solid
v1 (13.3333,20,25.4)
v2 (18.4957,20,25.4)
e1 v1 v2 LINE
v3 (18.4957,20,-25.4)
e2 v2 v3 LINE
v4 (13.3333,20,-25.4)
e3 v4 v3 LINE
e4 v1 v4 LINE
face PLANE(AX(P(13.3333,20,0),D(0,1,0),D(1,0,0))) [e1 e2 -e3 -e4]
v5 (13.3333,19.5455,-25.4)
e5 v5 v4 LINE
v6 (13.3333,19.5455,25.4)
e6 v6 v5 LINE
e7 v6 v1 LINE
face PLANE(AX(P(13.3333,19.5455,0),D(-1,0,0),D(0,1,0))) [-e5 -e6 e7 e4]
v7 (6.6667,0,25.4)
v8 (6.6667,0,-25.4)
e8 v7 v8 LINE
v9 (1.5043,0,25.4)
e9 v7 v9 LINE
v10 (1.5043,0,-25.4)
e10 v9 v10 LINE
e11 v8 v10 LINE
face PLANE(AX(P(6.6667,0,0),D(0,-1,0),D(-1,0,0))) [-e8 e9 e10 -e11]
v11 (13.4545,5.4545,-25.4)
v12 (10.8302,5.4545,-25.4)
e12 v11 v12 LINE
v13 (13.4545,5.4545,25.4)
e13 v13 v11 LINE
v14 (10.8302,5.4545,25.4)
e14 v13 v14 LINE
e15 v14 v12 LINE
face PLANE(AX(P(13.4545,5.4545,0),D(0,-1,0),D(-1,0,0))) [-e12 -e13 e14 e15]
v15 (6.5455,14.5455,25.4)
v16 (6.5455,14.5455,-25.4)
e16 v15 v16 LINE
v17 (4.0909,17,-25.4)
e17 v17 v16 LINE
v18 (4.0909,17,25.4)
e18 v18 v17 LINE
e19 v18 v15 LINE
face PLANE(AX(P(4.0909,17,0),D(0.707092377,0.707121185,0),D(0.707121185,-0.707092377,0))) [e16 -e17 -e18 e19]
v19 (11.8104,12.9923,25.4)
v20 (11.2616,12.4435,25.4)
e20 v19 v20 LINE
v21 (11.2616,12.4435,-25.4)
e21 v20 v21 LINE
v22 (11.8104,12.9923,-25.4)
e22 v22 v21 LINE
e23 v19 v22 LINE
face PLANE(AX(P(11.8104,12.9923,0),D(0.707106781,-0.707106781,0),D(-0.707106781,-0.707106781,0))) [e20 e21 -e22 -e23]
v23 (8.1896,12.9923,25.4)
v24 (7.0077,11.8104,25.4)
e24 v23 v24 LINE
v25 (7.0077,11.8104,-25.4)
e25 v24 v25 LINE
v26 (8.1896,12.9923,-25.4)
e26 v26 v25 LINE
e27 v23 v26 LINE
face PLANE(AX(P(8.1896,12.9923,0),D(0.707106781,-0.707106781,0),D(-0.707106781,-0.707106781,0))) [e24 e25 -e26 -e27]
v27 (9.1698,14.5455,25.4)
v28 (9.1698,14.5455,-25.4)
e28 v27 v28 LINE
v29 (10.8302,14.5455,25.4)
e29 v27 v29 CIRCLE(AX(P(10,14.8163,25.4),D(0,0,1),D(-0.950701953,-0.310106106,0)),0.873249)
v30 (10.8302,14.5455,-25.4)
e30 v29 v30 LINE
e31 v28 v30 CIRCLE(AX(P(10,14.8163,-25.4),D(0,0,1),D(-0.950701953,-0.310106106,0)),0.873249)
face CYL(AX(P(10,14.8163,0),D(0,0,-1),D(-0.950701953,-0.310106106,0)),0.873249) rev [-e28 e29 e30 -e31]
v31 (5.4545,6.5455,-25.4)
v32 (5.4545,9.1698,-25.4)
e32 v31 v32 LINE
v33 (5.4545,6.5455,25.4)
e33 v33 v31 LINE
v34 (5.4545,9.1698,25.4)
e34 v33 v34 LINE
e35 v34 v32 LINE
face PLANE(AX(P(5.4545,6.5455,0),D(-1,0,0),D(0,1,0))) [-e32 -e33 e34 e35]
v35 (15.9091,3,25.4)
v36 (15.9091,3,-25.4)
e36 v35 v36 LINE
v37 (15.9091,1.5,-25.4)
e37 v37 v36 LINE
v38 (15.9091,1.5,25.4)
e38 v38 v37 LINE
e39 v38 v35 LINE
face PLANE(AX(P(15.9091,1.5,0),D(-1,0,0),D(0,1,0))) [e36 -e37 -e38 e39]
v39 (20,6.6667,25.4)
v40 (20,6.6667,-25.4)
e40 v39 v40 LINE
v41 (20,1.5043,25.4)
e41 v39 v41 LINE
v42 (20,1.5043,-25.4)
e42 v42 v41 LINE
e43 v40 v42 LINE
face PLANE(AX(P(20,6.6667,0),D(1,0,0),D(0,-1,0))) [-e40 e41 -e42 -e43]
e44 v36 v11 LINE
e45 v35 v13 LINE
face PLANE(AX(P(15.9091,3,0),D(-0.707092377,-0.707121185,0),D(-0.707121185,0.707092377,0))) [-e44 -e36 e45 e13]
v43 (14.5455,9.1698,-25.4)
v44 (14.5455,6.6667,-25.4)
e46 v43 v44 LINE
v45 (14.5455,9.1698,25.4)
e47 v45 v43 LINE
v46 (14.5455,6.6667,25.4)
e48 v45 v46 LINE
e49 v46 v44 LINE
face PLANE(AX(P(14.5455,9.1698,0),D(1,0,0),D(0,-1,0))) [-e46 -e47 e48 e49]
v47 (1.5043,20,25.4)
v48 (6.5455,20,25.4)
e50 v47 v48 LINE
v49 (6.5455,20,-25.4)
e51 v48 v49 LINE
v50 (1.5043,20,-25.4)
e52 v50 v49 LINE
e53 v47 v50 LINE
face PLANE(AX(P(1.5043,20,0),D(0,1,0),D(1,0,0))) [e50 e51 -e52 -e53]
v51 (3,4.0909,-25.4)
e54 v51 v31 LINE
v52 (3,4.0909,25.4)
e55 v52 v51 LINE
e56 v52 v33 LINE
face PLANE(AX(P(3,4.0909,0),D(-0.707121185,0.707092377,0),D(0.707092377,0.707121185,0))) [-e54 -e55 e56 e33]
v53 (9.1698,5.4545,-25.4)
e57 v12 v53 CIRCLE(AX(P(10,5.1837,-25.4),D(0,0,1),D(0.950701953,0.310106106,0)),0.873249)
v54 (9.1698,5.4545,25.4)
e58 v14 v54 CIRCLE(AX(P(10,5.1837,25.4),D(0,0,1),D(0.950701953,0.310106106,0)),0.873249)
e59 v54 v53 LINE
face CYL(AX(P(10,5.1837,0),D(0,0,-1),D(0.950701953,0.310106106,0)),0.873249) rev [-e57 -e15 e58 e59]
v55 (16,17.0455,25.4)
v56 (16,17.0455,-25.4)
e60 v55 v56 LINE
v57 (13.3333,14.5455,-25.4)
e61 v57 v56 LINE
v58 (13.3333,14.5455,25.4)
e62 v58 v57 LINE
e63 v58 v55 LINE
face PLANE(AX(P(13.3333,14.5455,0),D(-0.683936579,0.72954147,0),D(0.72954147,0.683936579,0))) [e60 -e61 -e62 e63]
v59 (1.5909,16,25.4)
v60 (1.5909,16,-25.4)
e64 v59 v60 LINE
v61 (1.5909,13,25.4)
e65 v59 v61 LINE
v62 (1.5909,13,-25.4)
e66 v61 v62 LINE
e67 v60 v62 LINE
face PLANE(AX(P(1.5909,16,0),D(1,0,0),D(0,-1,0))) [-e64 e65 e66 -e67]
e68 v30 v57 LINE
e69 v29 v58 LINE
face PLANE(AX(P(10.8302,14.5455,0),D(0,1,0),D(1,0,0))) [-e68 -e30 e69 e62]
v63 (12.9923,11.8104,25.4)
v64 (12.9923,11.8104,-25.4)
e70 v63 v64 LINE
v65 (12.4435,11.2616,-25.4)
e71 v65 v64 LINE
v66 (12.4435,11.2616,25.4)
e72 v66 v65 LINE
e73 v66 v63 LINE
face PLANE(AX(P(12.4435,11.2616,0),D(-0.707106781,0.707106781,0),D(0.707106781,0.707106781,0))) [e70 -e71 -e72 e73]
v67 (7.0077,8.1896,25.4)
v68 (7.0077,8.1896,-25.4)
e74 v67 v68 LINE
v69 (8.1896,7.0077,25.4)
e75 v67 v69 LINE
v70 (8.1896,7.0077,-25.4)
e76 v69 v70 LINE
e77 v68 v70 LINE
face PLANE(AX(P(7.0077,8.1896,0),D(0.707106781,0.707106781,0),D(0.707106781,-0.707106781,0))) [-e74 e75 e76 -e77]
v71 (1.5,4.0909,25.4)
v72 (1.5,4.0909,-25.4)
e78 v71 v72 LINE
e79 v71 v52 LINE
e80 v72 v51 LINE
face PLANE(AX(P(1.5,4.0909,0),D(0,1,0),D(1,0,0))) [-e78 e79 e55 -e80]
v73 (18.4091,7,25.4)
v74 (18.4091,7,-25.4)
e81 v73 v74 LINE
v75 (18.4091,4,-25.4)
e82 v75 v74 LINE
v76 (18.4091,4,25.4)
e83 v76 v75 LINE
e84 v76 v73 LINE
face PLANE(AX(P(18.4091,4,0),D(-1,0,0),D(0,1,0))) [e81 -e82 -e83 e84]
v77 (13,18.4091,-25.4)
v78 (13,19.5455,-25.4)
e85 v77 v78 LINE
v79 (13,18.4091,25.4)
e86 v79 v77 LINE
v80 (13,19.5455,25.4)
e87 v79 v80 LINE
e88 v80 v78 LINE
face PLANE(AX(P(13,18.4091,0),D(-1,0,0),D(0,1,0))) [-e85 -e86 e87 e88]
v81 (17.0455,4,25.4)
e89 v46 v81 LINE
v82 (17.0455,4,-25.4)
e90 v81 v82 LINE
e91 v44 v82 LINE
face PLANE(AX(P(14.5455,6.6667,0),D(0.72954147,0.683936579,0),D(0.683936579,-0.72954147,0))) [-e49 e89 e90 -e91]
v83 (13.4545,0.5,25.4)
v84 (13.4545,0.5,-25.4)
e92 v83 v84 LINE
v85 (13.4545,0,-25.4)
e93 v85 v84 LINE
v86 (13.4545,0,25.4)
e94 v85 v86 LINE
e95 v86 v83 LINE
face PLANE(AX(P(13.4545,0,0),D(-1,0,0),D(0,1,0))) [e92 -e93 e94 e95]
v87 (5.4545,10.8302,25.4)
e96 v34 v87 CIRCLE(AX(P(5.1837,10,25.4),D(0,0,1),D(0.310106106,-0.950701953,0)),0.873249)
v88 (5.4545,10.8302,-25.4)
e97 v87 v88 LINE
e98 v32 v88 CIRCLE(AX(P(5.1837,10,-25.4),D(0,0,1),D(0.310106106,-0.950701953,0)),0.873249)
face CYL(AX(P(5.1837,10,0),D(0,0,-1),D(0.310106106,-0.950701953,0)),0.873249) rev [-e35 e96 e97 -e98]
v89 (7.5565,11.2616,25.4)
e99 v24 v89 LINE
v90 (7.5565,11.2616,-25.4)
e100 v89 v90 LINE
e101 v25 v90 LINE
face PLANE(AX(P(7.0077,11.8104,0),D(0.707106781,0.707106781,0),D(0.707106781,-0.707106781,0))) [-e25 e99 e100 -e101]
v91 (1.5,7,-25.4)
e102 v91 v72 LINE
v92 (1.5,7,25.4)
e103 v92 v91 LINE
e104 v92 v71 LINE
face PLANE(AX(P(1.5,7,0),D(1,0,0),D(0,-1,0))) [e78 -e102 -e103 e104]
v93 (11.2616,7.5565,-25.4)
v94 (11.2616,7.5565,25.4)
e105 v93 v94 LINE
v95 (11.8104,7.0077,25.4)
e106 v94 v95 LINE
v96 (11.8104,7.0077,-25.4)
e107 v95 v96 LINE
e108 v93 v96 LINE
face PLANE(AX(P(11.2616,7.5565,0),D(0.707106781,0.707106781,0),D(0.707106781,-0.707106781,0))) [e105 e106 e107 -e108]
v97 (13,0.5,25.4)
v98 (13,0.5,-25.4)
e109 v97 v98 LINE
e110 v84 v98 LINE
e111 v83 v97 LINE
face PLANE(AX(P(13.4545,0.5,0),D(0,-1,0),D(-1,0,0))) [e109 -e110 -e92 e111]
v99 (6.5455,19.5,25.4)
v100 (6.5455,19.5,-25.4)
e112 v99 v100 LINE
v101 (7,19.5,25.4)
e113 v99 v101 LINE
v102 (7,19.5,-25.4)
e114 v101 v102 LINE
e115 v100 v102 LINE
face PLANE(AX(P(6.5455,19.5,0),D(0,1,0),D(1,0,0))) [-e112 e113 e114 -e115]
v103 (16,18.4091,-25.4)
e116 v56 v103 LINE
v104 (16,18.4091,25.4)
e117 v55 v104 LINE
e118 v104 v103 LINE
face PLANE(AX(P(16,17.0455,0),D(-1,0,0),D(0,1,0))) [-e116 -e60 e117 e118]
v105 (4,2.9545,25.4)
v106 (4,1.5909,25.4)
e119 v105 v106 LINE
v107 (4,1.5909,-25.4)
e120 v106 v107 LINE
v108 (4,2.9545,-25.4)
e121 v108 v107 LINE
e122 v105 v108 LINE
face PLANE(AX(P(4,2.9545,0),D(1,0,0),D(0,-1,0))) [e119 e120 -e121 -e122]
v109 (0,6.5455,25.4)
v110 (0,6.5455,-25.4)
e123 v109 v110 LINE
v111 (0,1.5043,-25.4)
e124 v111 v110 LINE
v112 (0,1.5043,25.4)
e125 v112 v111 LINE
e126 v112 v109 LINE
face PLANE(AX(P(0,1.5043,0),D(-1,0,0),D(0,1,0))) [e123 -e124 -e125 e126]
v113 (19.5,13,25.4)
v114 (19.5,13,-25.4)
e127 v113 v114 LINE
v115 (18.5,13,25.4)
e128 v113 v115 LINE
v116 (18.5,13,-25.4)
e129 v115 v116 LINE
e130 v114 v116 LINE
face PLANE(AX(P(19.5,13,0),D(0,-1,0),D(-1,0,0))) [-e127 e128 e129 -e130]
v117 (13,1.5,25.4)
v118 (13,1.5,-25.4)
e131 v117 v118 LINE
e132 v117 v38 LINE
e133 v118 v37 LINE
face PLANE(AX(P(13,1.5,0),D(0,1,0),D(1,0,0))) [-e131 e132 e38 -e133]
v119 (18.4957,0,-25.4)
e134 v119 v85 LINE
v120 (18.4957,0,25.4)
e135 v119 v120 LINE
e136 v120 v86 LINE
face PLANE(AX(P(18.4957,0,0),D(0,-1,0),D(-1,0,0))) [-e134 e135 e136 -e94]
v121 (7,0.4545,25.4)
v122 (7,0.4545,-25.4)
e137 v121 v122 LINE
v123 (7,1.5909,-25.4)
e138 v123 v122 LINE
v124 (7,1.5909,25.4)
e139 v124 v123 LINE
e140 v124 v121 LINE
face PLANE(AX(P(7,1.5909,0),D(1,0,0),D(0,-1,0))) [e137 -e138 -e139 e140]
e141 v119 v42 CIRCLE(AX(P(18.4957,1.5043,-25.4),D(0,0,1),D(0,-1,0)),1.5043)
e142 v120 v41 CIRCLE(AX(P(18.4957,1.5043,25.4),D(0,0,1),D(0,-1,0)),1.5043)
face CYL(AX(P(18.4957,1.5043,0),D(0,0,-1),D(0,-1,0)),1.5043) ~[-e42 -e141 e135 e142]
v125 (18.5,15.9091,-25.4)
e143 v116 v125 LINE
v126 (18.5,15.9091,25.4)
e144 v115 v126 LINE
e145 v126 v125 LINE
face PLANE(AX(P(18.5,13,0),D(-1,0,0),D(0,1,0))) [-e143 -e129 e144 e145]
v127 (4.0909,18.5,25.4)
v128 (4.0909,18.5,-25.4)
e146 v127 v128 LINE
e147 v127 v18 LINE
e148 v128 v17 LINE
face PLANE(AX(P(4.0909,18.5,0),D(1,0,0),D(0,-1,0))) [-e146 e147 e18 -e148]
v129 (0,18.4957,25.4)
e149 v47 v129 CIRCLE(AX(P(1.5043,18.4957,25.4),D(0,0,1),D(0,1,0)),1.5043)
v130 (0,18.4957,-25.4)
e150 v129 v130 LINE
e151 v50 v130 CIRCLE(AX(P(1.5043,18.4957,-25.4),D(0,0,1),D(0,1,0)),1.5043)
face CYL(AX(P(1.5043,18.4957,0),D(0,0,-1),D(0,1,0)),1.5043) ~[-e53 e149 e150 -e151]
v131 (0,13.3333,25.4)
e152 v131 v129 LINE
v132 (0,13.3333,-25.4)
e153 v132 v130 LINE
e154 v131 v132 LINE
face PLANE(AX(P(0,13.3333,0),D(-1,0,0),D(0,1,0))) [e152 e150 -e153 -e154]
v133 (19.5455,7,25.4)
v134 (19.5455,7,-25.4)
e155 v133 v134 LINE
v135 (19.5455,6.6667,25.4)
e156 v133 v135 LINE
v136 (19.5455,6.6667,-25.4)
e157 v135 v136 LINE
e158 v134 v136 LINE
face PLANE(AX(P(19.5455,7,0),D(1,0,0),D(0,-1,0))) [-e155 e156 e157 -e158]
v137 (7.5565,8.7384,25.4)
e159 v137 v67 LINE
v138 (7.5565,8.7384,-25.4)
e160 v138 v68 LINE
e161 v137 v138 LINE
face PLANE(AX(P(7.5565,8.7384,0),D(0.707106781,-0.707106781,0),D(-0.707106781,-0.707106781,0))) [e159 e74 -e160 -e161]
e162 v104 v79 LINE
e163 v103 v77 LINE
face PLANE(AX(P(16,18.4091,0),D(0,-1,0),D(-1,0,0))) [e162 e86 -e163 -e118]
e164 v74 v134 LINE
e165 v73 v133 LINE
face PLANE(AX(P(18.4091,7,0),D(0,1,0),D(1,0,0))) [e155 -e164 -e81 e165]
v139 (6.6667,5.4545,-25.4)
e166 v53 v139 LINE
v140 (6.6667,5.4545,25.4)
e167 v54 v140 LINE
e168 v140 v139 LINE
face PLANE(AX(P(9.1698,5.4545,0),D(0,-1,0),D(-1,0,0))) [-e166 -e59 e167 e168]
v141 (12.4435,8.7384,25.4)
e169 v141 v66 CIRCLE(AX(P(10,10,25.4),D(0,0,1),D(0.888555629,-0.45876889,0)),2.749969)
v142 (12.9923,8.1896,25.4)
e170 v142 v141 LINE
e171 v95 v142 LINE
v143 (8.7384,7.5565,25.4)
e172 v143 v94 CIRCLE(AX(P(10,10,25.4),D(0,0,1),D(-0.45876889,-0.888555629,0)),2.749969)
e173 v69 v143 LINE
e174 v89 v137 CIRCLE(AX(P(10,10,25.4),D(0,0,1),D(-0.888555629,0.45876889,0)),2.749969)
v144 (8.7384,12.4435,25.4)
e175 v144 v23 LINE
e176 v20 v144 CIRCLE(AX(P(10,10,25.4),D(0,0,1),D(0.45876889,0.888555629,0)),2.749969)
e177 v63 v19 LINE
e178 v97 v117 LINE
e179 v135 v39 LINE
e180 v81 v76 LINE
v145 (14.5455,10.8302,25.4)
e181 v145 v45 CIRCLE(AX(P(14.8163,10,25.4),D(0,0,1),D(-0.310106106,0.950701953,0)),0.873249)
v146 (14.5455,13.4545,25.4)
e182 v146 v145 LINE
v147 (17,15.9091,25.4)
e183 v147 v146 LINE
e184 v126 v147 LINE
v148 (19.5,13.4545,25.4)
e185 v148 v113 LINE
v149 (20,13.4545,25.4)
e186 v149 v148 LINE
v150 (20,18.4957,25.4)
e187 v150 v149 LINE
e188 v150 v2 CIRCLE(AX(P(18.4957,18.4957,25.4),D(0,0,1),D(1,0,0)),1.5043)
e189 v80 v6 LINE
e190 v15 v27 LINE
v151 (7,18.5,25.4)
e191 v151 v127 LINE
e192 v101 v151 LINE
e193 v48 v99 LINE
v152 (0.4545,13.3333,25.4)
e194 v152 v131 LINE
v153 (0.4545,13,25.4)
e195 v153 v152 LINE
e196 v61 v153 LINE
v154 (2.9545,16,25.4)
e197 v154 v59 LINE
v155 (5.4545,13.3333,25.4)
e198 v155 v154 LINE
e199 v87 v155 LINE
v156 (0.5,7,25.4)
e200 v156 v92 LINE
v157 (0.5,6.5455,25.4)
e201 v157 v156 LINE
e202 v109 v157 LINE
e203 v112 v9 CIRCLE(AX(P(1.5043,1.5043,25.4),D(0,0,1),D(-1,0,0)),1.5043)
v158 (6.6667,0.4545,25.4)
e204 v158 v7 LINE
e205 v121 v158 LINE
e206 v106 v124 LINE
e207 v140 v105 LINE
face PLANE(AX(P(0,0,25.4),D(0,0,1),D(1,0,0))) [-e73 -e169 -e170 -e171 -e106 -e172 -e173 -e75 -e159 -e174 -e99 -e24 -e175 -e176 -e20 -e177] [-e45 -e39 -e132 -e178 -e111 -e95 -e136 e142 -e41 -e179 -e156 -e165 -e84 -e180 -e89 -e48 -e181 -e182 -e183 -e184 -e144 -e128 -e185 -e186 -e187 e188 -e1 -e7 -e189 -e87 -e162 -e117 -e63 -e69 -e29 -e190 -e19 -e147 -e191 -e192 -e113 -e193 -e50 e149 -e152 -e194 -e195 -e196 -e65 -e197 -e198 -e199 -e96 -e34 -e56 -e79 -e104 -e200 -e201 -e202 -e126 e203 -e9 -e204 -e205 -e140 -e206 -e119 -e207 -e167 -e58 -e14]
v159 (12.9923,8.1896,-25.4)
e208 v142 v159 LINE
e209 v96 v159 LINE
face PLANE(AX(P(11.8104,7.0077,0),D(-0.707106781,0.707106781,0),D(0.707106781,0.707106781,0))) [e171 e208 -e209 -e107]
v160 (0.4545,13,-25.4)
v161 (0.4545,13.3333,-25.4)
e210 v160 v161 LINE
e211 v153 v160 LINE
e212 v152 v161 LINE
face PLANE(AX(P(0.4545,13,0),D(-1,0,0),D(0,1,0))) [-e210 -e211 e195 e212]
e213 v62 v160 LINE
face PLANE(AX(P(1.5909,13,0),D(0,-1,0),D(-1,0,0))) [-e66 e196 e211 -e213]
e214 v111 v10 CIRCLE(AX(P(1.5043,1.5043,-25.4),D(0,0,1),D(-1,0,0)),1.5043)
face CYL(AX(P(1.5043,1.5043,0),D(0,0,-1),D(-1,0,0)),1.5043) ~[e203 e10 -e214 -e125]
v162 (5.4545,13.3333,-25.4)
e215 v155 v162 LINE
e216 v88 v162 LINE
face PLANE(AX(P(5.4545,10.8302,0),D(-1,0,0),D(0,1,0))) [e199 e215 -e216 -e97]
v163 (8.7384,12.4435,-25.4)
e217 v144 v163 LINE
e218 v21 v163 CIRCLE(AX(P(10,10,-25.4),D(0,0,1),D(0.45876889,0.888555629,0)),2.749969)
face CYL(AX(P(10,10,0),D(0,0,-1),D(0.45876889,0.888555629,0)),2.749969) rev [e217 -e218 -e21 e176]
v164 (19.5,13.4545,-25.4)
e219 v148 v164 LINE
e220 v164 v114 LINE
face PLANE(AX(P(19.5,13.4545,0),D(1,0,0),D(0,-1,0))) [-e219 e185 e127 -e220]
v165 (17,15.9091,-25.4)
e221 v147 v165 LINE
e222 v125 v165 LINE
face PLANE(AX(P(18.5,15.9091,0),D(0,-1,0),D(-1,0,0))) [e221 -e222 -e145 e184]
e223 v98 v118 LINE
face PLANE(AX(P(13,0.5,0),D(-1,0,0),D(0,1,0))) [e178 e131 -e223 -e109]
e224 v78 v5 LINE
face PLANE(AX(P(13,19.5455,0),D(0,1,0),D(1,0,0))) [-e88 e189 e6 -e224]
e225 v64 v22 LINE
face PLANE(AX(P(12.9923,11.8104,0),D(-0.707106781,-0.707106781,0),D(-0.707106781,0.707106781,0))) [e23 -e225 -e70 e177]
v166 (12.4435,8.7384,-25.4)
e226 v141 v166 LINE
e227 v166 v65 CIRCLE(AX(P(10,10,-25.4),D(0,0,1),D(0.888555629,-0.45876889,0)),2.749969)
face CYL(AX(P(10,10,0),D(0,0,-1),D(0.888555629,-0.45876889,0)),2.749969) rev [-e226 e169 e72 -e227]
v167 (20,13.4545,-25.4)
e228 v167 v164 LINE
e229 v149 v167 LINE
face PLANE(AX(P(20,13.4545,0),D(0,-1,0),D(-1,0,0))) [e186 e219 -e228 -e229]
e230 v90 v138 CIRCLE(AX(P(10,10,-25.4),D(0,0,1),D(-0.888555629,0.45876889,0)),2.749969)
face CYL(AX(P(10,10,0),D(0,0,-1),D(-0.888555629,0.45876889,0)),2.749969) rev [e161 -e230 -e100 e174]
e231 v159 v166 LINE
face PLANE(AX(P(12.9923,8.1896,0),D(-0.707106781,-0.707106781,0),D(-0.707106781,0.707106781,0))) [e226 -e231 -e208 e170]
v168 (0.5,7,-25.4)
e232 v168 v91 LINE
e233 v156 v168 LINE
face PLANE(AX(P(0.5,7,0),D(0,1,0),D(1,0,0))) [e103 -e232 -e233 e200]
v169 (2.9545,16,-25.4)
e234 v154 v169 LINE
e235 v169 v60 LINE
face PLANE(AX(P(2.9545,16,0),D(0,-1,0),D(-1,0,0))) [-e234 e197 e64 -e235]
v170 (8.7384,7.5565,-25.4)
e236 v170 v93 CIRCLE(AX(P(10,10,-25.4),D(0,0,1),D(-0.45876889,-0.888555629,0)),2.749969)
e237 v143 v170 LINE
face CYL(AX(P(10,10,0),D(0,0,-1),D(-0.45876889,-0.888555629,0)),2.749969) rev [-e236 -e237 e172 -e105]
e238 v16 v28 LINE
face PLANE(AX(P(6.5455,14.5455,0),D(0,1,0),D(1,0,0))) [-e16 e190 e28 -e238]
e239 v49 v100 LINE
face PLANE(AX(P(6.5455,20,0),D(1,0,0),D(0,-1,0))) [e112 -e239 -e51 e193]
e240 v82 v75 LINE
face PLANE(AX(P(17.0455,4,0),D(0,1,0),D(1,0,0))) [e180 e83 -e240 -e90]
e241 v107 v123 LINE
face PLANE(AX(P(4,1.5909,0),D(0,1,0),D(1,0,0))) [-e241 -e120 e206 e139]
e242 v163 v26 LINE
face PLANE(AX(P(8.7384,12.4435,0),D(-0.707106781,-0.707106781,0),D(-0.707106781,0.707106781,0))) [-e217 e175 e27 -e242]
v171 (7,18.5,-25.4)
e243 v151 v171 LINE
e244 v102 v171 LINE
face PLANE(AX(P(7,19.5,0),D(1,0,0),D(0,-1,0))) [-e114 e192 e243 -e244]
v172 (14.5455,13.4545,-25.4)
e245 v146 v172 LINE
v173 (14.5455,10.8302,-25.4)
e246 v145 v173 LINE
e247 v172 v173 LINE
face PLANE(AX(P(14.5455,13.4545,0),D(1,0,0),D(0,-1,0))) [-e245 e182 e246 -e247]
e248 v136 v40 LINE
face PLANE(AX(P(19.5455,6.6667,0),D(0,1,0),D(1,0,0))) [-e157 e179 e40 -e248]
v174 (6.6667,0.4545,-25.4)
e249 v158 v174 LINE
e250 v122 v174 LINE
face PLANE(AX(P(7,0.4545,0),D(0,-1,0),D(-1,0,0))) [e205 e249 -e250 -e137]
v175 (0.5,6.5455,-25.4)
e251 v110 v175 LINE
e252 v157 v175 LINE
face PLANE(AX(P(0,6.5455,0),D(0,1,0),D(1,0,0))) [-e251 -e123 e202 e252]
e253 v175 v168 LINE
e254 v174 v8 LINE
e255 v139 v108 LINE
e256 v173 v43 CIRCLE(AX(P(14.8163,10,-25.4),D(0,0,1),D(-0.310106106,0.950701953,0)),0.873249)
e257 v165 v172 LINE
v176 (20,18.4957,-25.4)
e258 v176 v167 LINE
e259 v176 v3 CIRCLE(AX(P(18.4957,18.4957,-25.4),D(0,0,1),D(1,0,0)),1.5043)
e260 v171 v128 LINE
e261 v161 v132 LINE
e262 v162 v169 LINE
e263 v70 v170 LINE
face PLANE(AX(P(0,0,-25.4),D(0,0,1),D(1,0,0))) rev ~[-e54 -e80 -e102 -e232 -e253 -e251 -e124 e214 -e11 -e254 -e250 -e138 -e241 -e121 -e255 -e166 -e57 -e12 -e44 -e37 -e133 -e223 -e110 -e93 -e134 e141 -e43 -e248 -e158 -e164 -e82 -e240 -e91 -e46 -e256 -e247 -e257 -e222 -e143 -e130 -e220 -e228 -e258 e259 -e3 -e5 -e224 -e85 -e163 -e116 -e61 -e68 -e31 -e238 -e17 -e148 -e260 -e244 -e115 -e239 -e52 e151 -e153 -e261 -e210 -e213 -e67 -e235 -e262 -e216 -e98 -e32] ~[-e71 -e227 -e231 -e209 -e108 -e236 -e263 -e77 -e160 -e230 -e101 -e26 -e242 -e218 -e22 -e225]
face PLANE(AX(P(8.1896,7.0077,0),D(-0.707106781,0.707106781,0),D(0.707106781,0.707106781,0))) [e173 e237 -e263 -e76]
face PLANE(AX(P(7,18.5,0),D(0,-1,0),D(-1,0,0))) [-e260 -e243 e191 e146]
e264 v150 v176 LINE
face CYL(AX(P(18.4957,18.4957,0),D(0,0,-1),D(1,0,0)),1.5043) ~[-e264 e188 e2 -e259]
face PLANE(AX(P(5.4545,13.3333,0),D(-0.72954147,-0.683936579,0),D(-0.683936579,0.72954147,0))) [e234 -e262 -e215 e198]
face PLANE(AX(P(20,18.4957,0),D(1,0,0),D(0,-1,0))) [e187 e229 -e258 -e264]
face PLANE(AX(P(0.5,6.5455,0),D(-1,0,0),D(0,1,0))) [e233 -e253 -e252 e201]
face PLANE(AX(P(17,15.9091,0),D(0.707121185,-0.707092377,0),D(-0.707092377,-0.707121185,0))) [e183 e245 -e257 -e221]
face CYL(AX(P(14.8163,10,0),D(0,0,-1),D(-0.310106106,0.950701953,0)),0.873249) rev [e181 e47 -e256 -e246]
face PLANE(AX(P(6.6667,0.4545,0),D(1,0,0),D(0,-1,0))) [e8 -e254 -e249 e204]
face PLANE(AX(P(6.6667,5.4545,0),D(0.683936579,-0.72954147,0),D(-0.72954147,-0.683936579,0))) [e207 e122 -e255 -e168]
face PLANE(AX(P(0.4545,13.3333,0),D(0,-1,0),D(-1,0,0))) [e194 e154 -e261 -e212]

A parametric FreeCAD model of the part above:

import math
import FreeCAD as App
import Part
import Sketcher

doc = App.newDocument("Part")
body = doc.addObject("PartDesign::Body", "Body")

# Sketch on XY plane
sketch1 = body.newObject("Sketcher::SketchObject", "Sketch")
sketch1.AttachmentSupport = (doc.getObject("XY_Plane"), [""])
sketch1.MapMode = "FlatFace"
sketch1.addGeometry([
    Part.LineSegment(App.Vector(13.45, 0.5, 0), App.Vector(13.45, 0, 0)),  # 0
    Part.LineSegment(App.Vector(13.45, 0, 0), App.Vector(18.5, 0, 0)),  # 1
    Part.ArcOfCircle(Part.Circle(App.Vector(18.5, 1.5, 0), App.Vector(0, 0, 1), 1.5), math.radians(-90), math.radians(0)),  # 2
    Part.LineSegment(App.Vector(20, 1.5, 0), App.Vector(20, 6.67, 0)),  # 3
    Part.LineSegment(App.Vector(20, 6.67, 0), App.Vector(19.55, 6.67, 0)),  # 4
    Part.LineSegment(App.Vector(19.55, 6.67, 0), App.Vector(19.55, 7, 0)),  # 5
    Part.LineSegment(App.Vector(19.55, 7, 0), App.Vector(18.41, 7, 0)),  # 6
    Part.LineSegment(App.Vector(18.41, 7, 0), App.Vector(18.41, 4, 0)),  # 7
    Part.LineSegment(App.Vector(18.41, 4, 0), App.Vector(17.05, 4, 0)),  # 8
    Part.LineSegment(App.Vector(17.05, 4, 0), App.Vector(14.55, 6.67, 0)),  # 9
    Part.LineSegment(App.Vector(14.55, 6.67, 0), App.Vector(14.55, 9.17, 0)),  # 10
    Part.ArcOfCircle(Part.Circle(App.Vector(14.82, 10, 0), App.Vector(0, 0, 1), 0.87), math.radians(108), math.radians(252)),  # 11
    Part.LineSegment(App.Vector(14.55, 10.83, 0), App.Vector(14.55, 13.45, 0)),  # 12
    Part.LineSegment(App.Vector(14.55, 13.45, 0), App.Vector(17, 15.91, 0)),  # 13
    Part.LineSegment(App.Vector(17, 15.91, 0), App.Vector(18.5, 15.91, 0)),  # 14
    Part.LineSegment(App.Vector(18.5, 15.91, 0), App.Vector(18.5, 13, 0)),  # 15
    Part.LineSegment(App.Vector(18.5, 13, 0), App.Vector(19.5, 13, 0)),  # 16
    Part.LineSegment(App.Vector(19.5, 13, 0), App.Vector(19.5, 13.45, 0)),  # 17
    Part.LineSegment(App.Vector(19.5, 13.45, 0), App.Vector(20, 13.45, 0)),  # 18
    Part.LineSegment(App.Vector(20, 13.45, 0), App.Vector(20, 18.5, 0)),  # 19
    Part.ArcOfCircle(Part.Circle(App.Vector(18.5, 18.5, 0), App.Vector(0, 0, 1), 1.5), math.radians(0), math.radians(90)),  # 20
    Part.LineSegment(App.Vector(18.5, 20, 0), App.Vector(13.33, 20, 0)),  # 21
    Part.LineSegment(App.Vector(13.33, 20, 0), App.Vector(13.33, 19.55, 0)),  # 22
    Part.LineSegment(App.Vector(13.33, 19.55, 0), App.Vector(13, 19.55, 0)),  # 23
    Part.LineSegment(App.Vector(13, 19.55, 0), App.Vector(13, 18.41, 0)),  # 24
    Part.LineSegment(App.Vector(13, 18.41, 0), App.Vector(16, 18.41, 0)),  # 25
    Part.LineSegment(App.Vector(16, 18.41, 0), App.Vector(16, 17.05, 0)),  # 26
    Part.LineSegment(App.Vector(16, 17.05, 0), App.Vector(13.33, 14.55, 0)),  # 27
    Part.LineSegment(App.Vector(13.33, 14.55, 0), App.Vector(10.83, 14.55, 0)),  # 28
    Part.ArcOfCircle(Part.Circle(App.Vector(10, 14.82, 0), App.Vector(0, 0, 1), 0.87), math.radians(-162), math.radians(-18)),  # 29
    Part.LineSegment(App.Vector(9.17, 14.55, 0), App.Vector(6.55, 14.55, 0)),  # 30
    Part.LineSegment(App.Vector(6.55, 14.55, 0), App.Vector(4.09, 17, 0)),  # 31
    Part.LineSegment(App.Vector(4.09, 17, 0), App.Vector(4.09, 18.5, 0)),  # 32
    Part.LineSegment(App.Vector(4.09, 18.5, 0), App.Vector(7, 18.5, 0)),  # 33
    Part.LineSegment(App.Vector(7, 18.5, 0), App.Vector(7, 19.5, 0)),  # 34
    Part.LineSegment(App.Vector(7, 19.5, 0), App.Vector(6.55, 19.5, 0)),  # 35
    Part.LineSegment(App.Vector(6.55, 19.5, 0), App.Vector(6.55, 20, 0)),  # 36
    Part.LineSegment(App.Vector(6.55, 20, 0), App.Vector(1.5, 20, 0)),  # 37
    Part.ArcOfCircle(Part.Circle(App.Vector(1.5, 18.5, 0), App.Vector(0, 0, 1), 1.5), math.radians(90), math.radians(180)),  # 38
    Part.LineSegment(App.Vector(0, 18.5, 0), App.Vector(0, 13.33, 0)),  # 39
    Part.LineSegment(App.Vector(0, 13.33, 0), App.Vector(0.45, 13.33, 0)),  # 40
    Part.LineSegment(App.Vector(0.45, 13.33, 0), App.Vector(0.45, 13, 0)),  # 41
    Part.LineSegment(App.Vector(0.45, 13, 0), App.Vector(1.59, 13, 0)),  # 42
    Part.LineSegment(App.Vector(1.59, 13, 0), App.Vector(1.59, 16, 0)),  # 43
    Part.LineSegment(App.Vector(1.59, 16, 0), App.Vector(2.95, 16, 0)),  # 44
    Part.LineSegment(App.Vector(2.95, 16, 0), App.Vector(5.45, 13.33, 0)),  # 45
    Part.LineSegment(App.Vector(5.45, 13.33, 0), App.Vector(5.45, 10.83, 0)),  # 46
    Part.ArcOfCircle(Part.Circle(App.Vector(5.18, 10, 0), App.Vector(0, 0, 1), 0.87), math.radians(-72), math.radians(72)),  # 47
    Part.LineSegment(App.Vector(5.45, 9.17, 0), App.Vector(5.45, 6.55, 0)),  # 48
    Part.LineSegment(App.Vector(5.45, 6.55, 0), App.Vector(3, 4.09, 0)),  # 49
    Part.LineSegment(App.Vector(3, 4.09, 0), App.Vector(1.5, 4.09, 0)),  # 50
    Part.LineSegment(App.Vector(1.5, 4.09, 0), App.Vector(1.5, 7, 0)),  # 51
    Part.LineSegment(App.Vector(1.5, 7, 0), App.Vector(0.5, 7, 0)),  # 52
    Part.LineSegment(App.Vector(0.5, 7, 0), App.Vector(0.5, 6.55, 0)),  # 53
    Part.LineSegment(App.Vector(0.5, 6.55, 0), App.Vector(0, 6.55, 0)),  # 54
    Part.LineSegment(App.Vector(0, 6.55, 0), App.Vector(0, 1.5, 0)),  # 55
    Part.ArcOfCircle(Part.Circle(App.Vector(1.5, 1.5, 0), App.Vector(0, 0, 1), 1.5), math.radians(180), math.radians(270)),  # 56
    Part.LineSegment(App.Vector(1.5, 0, 0), App.Vector(6.67, 0, 0)),  # 57
    Part.LineSegment(App.Vector(6.67, 0, 0), App.Vector(6.67, 0.45, 0)),  # 58
    Part.LineSegment(App.Vector(6.67, 0.45, 0), App.Vector(7, 0.45, 0)),  # 59
    Part.LineSegment(App.Vector(7, 0.45, 0), App.Vector(7, 1.59, 0)),  # 60
    Part.LineSegment(App.Vector(7, 1.59, 0), App.Vector(4, 1.59, 0)),  # 61
    Part.LineSegment(App.Vector(4, 1.59, 0), App.Vector(4, 2.95, 0)),  # 62
    Part.LineSegment(App.Vector(4, 2.95, 0), App.Vector(6.67, 5.45, 0)),  # 63
    Part.LineSegment(App.Vector(6.67, 5.45, 0), App.Vector(9.17, 5.45, 0)),  # 64
    Part.ArcOfCircle(Part.Circle(App.Vector(10, 5.18, 0), App.Vector(0, 0, 1), 0.87), math.radians(18), math.radians(162)),  # 65
    Part.LineSegment(App.Vector(10.83, 5.45, 0), App.Vector(13.45, 5.45, 0)),  # 66
    Part.LineSegment(App.Vector(13.45, 5.45, 0), App.Vector(15.91, 3, 0)),  # 67
    Part.LineSegment(App.Vector(15.91, 3, 0), App.Vector(15.91, 1.5, 0)),  # 68
    Part.LineSegment(App.Vector(15.91, 1.5, 0), App.Vector(13, 1.5, 0)),  # 69
    Part.LineSegment(App.Vector(13, 1.5, 0), App.Vector(13, 0.5, 0)),  # 70
    Part.LineSegment(App.Vector(13, 0.5, 0), App.Vector(13.45, 0.5, 0)),  # 71
    Part.LineSegment(App.Vector(11.81, 7.01, 0), App.Vector(11.26, 7.56, 0)),  # 72
    Part.ArcOfCircle(Part.Circle(App.Vector(10, 10, 0), App.Vector(0, 0, 1), 2.75), math.radians(-117), math.radians(-63)),  # 73
    Part.LineSegment(App.Vector(8.74, 7.56, 0), App.Vector(8.19, 7.01, 0)),  # 74
    Part.LineSegment(App.Vector(8.19, 7.01, 0), App.Vector(7.01, 8.19, 0)),  # 75
    Part.LineSegment(App.Vector(7.01, 8.19, 0), App.Vector(7.56, 8.74, 0)),  # 76
    Part.ArcOfCircle(Part.Circle(App.Vector(10, 10, 0), App.Vector(0, 0, 1), 2.75), math.radians(153), math.radians(207)),  # 77
    Part.LineSegment(App.Vector(7.56, 11.26, 0), App.Vector(7.01, 11.81, 0)),  # 78
    Part.LineSegment(App.Vector(7.01, 11.81, 0), App.Vector(8.19, 12.99, 0)),  # 79
    Part.LineSegment(App.Vector(8.19, 12.99, 0), App.Vector(8.74, 12.44, 0)),  # 80
    Part.ArcOfCircle(Part.Circle(App.Vector(10, 10, 0), App.Vector(0, 0, 1), 2.75), math.radians(63), math.radians(117)),  # 81
    Part.LineSegment(App.Vector(11.26, 12.44, 0), App.Vector(11.81, 12.99, 0)),  # 82
    Part.LineSegment(App.Vector(11.81, 12.99, 0), App.Vector(12.99, 11.81, 0)),  # 83
    Part.LineSegment(App.Vector(12.99, 11.81, 0), App.Vector(12.44, 11.26, 0)),  # 84
    Part.ArcOfCircle(Part.Circle(App.Vector(10, 10, 0), App.Vector(0, 0, 1), 2.75), math.radians(-27), math.radians(27)),  # 85
    Part.LineSegment(App.Vector(12.44, 8.74, 0), App.Vector(12.99, 8.19, 0)),  # 86
    Part.LineSegment(App.Vector(12.99, 8.19, 0), App.Vector(11.81, 7.01, 0)),  # 87
], False)
sketch1.addConstraint([
    Sketcher.Constraint("Coincident", 0, 2, 1, 1),
    Sketcher.Constraint("Tangent", 1, 2, 2, 1),
    Sketcher.Constraint("Tangent", 2, 2, 3, 1),
    Sketcher.Constraint("Coincident", 3, 2, 4, 1),
    Sketcher.Constraint("Coincident", 4, 2, 5, 1),
    Sketcher.Constraint("Coincident", 5, 2, 6, 1),
    Sketcher.Constraint("Coincident", 6, 2, 7, 1),
    Sketcher.Constraint("Coincident", 7, 2, 8, 1),
    Sketcher.Constraint("Coincident", 8, 2, 9, 1),
    Sketcher.Constraint("Coincident", 9, 2, 10, 1),
    Sketcher.Constraint("Coincident", 10, 2, 11, 2),
    Sketcher.Constraint("Coincident", 11, 1, 12, 1),
    Sketcher.Constraint("Coincident", 12, 2, 13, 1),
    Sketcher.Constraint("Coincident", 13, 2, 14, 1),
    Sketcher.Constraint("Coincident", 14, 2, 15, 1),
    Sketcher.Constraint("Coincident", 15, 2, 16, 1),
    Sketcher.Constraint("Coincident", 16, 2, 17, 1),
    Sketcher.Constraint("Coincident", 17, 2, 18, 1),
    Sketcher.Constraint("Coincident", 18, 2, 19, 1),
    Sketcher.Constraint("Tangent", 19, 2, 20, 1),
    Sketcher.Constraint("Tangent", 20, 2, 21, 1),
    Sketcher.Constraint("Coincident", 21, 2, 22, 1),
    Sketcher.Constraint("Coincident", 22, 2, 23, 1),
    Sketcher.Constraint("Coincident", 23, 2, 24, 1),
    Sketcher.Constraint("Coincident", 24, 2, 25, 1),
    Sketcher.Constraint("Coincident", 25, 2, 26, 1),
    Sketcher.Constraint("Coincident", 26, 2, 27, 1),
    Sketcher.Constraint("Coincident", 27, 2, 28, 1),
    Sketcher.Constraint("Coincident", 28, 2, 29, 2),
    Sketcher.Constraint("Coincident", 29, 1, 30, 1),
    Sketcher.Constraint("Coincident", 30, 2, 31, 1),
    Sketcher.Constraint("Coincident", 31, 2, 32, 1),
    Sketcher.Constraint("Coincident", 32, 2, 33, 1),
    Sketcher.Constraint("Coincident", 33, 2, 34, 1),
    Sketcher.Constraint("Coincident", 34, 2, 35, 1),
    Sketcher.Constraint("Coincident", 35, 2, 36, 1),
    Sketcher.Constraint("Coincident", 36, 2, 37, 1),
    Sketcher.Constraint("Tangent", 37, 2, 38, 1),
    Sketcher.Constraint("Tangent", 38, 2, 39, 1),
    Sketcher.Constraint("Coincident", 39, 2, 40, 1),
    Sketcher.Constraint("Coincident", 40, 2, 41, 1),
    Sketcher.Constraint("Coincident", 41, 2, 42, 1),
    Sketcher.Constraint("Coincident", 42, 2, 43, 1),
    Sketcher.Constraint("Coincident", 43, 2, 44, 1),
    Sketcher.Constraint("Coincident", 44, 2, 45, 1),
    Sketcher.Constraint("Coincident", 45, 2, 46, 1),
    Sketcher.Constraint("Coincident", 46, 2, 47, 2),
    Sketcher.Constraint("Coincident", 47, 1, 48, 1),
    Sketcher.Constraint("Coincident", 48, 2, 49, 1),
    Sketcher.Constraint("Coincident", 49, 2, 50, 1),
    Sketcher.Constraint("Coincident", 50, 2, 51, 1),
    Sketcher.Constraint("Coincident", 51, 2, 52, 1),
    Sketcher.Constraint("Coincident", 52, 2, 53, 1),
    Sketcher.Constraint("Coincident", 53, 2, 54, 1),
    Sketcher.Constraint("Coincident", 54, 2, 55, 1),
    Sketcher.Constraint("Tangent", 55, 2, 56, 1),
    Sketcher.Constraint("Tangent", 56, 2, 57, 1),
    Sketcher.Constraint("Coincident", 57, 2, 58, 1),
    Sketcher.Constraint("Coincident", 58, 2, 59, 1),
    Sketcher.Constraint("Coincident", 59, 2, 60, 1),
    Sketcher.Constraint("Coincident", 60, 2, 61, 1),
    Sketcher.Constraint("Coincident", 61, 2, 62, 1),
    Sketcher.Constraint("Coincident", 62, 2, 63, 1),
    Sketcher.Constraint("Coincident", 63, 2, 64, 1),
    Sketcher.Constraint("Coincident", 64, 2, 65, 2),
    Sketcher.Constraint("Coincident", 65, 1, 66, 1),
    Sketcher.Constraint("Coincident", 66, 2, 67, 1),
    Sketcher.Constraint("Coincident", 67, 2, 68, 1),
    Sketcher.Constraint("Coincident", 68, 2, 69, 1),
    Sketcher.Constraint("Coincident", 69, 2, 70, 1),
    Sketcher.Constraint("Coincident", 70, 2, 71, 1),
    Sketcher.Constraint("Coincident", 71, 2, 0, 1),
    Sketcher.Constraint("Coincident", 72, 2, 73, 2),
    Sketcher.Constraint("Coincident", 73, 1, 74, 1),
    Sketcher.Constraint("Coincident", 74, 2, 75, 1),
    Sketcher.Constraint("Coincident", 75, 2, 76, 1),
    Sketcher.Constraint("Coincident", 76, 2, 77, 2),
    Sketcher.Constraint("Coincident", 77, 1, 78, 1),
    Sketcher.Constraint("Coincident", 78, 2, 79, 1),
    Sketcher.Constraint("Coincident", 79, 2, 80, 1),
    Sketcher.Constraint("Coincident", 80, 2, 81, 2),
    Sketcher.Constraint("Coincident", 81, 1, 82, 1),
    Sketcher.Constraint("Coincident", 82, 2, 83, 1),
    Sketcher.Constraint("Coincident", 83, 2, 84, 1),
    Sketcher.Constraint("Coincident", 84, 2, 85, 2),
    Sketcher.Constraint("Coincident", 85, 1, 86, 1),
    Sketcher.Constraint("Coincident", 86, 2, 87, 1),
    Sketcher.Constraint("Coincident", 87, 2, 72, 1),
    Sketcher.Constraint("Vertical", 0),
    Sketcher.Constraint("Horizontal", 1),
    Sketcher.Constraint("Vertical", 3),
    Sketcher.Constraint("Horizontal", 4),
    Sketcher.Constraint("Vertical", 5),
    Sketcher.Constraint("Horizontal", 6),
    Sketcher.Constraint("Vertical", 7),
    Sketcher.Constraint("Horizontal", 8),
    Sketcher.Constraint("Vertical", 10),
    Sketcher.Constraint("Vertical", 12),
    Sketcher.Constraint("Horizontal", 14),
    Sketcher.Constraint("Vertical", 15),
    Sketcher.Constraint("Horizontal", 16),
    Sketcher.Constraint("Vertical", 17),
    Sketcher.Constraint("Horizontal", 18),
    Sketcher.Constraint("Vertical", 19),
    Sketcher.Constraint("Horizontal", 21),
    Sketcher.Constraint("Vertical", 22),
    Sketcher.Constraint("Horizontal", 23),
    Sketcher.Constraint("Vertical", 24),
    Sketcher.Constraint("Horizontal", 25),
    Sketcher.Constraint("Vertical", 26),
    Sketcher.Constraint("Horizontal", 28),
    Sketcher.Constraint("Horizontal", 30),
    Sketcher.Constraint("Vertical", 32),
    Sketcher.Constraint("Horizontal", 33),
    Sketcher.Constraint("Vertical", 34),
    Sketcher.Constraint("Horizontal", 35),
    Sketcher.Constraint("Vertical", 36),
    Sketcher.Constraint("Horizontal", 37),
    Sketcher.Constraint("Vertical", 39),
    Sketcher.Constraint("Horizontal", 40),
    Sketcher.Constraint("Vertical", 41),
    Sketcher.Constraint("Horizontal", 42),
    Sketcher.Constraint("Vertical", 43),
    Sketcher.Constraint("Horizontal", 44),
    Sketcher.Constraint("Vertical", 46),
    Sketcher.Constraint("Vertical", 48),
    Sketcher.Constraint("Horizontal", 50),
    Sketcher.Constraint("Vertical", 51),
    Sketcher.Constraint("Horizontal", 52),
    Sketcher.Constraint("Vertical", 53),
    Sketcher.Constraint("Horizontal", 54),
    Sketcher.Constraint("Vertical", 55),
    Sketcher.Constraint("Horizontal", 57),
    Sketcher.Constraint("Vertical", 58),
    Sketcher.Constraint("Horizontal", 59),
    Sketcher.Constraint("Vertical", 60),
    Sketcher.Constraint("Horizontal", 61),
    Sketcher.Constraint("Vertical", 62),
    Sketcher.Constraint("Horizontal", 64),
    Sketcher.Constraint("Horizontal", 66),
    Sketcher.Constraint("Vertical", 68),
    Sketcher.Constraint("Horizontal", 69),
    Sketcher.Constraint("Vertical", 70),
    Sketcher.Constraint("Horizontal", 71),
    Sketcher.Constraint("Coincident", 77, 3, 73, 3),
    Sketcher.Constraint("Coincident", 81, 3, 73, 3),
    Sketcher.Constraint("Coincident", 85, 3, 73, 3),
    Sketcher.Constraint("Equal", 2, 20),
    Sketcher.Constraint("Equal", 11, 29),
    Sketcher.Constraint("Equal", 20, 38),
    Sketcher.Constraint("Equal", 29, 47),
    Sketcher.Constraint("Equal", 38, 56),
    Sketcher.Constraint("Equal", 47, 65),
    Sketcher.Constraint("Equal", 73, 77),
    Sketcher.Constraint("Equal", 77, 81),
    Sketcher.Constraint("Equal", 81, 85),
    Sketcher.Constraint("PointOnObject", 0, 2, -1),
    Sketcher.Constraint("PointOnObject", 38, 2, -2),
    Sketcher.Constraint("PointOnObject", 54, 2, -2),
    Sketcher.Constraint("PointOnObject", 56, 2, -1),
    Sketcher.Constraint("Perpendicular", 9, 27),
    Sketcher.Constraint("Perpendicular", 13, 31),
    Sketcher.Constraint("Perpendicular", 27, 45),
    Sketcher.Constraint("Perpendicular", 31, 49),
    Sketcher.Constraint("Perpendicular", 45, 63),
    Sketcher.Constraint("Perpendicular", 49, 67),
    Sketcher.Constraint("Parallel", 67, 72),
    Sketcher.Constraint("Perpendicular", 72, 74),
    Sketcher.Constraint("Perpendicular", 74, 75),
    Sketcher.Constraint("Perpendicular", 75, 76),
    Sketcher.Constraint("Perpendicular", 76, 78),
    Sketcher.Constraint("Perpendicular", 78, 79),
    Sketcher.Constraint("Perpendicular", 79, 80),
    Sketcher.Constraint("Perpendicular", 80, 82),
    Sketcher.Constraint("Perpendicular", 82, 83),
    Sketcher.Constraint("Perpendicular", 83, 84),
    Sketcher.Constraint("Perpendicular", 84, 86),
    Sketcher.Constraint("Perpendicular", 86, 87),
    Sketcher.Constraint("Horizontal", 20, 3, 38, 3),
    Sketcher.Constraint("Horizontal", 11, 3, 47, 3),
    Sketcher.Constraint("Horizontal", 47, 3, 73, 3),
    Sketcher.Constraint("Horizontal", 4, 2, 9, 2),
    Sketcher.Constraint("Horizontal", 12, 2, 17, 2),
    Sketcher.Constraint("Horizontal", 28, 2, 29, 1),
    Sketcher.Constraint("Horizontal", 16, 2, 41, 2),
    Sketcher.Constraint("Horizontal", 40, 2, 45, 2),
    Sketcher.Constraint("Horizontal", 11, 1, 46, 2),
    Sketcher.Constraint("Horizontal", 10, 2, 47, 1),
    Sketcher.Constraint("Horizontal", 6, 2, 51, 2),
    Sketcher.Constraint("Horizontal", 48, 2, 53, 2),
    Sketcher.Constraint("Horizontal", 64, 2, 65, 1),
    Sketcher.Constraint("Horizontal", 72, 2, 73, 1),
    Sketcher.Constraint("Horizontal", 80, 2, 81, 1),
    Sketcher.Constraint("Horizontal", 79, 2, 82, 2),
    Sketcher.Constraint("Horizontal", 78, 2, 83, 2),
    Sketcher.Constraint("Horizontal", 77, 1, 84, 2),
    Sketcher.Constraint("Horizontal", 76, 2, 85, 1),
    Sketcher.Constraint("Horizontal", 75, 2, 86, 2),
    Sketcher.Constraint("Vertical", 2, 3, 20, 3),
    Sketcher.Constraint("Vertical", 29, 3, 65, 3),
    Sketcher.Constraint("Vertical", 65, 3, 73, 3),
    Sketcher.Constraint("Vertical", 10, 2, 11, 1),
    Sketcher.Constraint("Vertical", 22, 2, 27, 2),
    Sketcher.Constraint("Vertical", 30, 2, 35, 2),
    Sketcher.Constraint("Vertical", 34, 2, 59, 2),
    Sketcher.Constraint("Vertical", 58, 2, 63, 2),
    Sketcher.Constraint("Vertical", 29, 1, 64, 2),
    Sketcher.Constraint("Vertical", 0, 2, 66, 2),
    Sketcher.Constraint("Vertical", 24, 2, 69, 2),
    Sketcher.Constraint("Vertical", 76, 2, 77, 1),
    Sketcher.Constraint("Vertical", 75, 2, 78, 2),
    Sketcher.Constraint("Vertical", 74, 2, 79, 2),
    Sketcher.Constraint("Equal", 4, 35),
    Sketcher.Constraint("Equal", 1, 37),
    Sketcher.Constraint("Equal", 35, 40),
    Sketcher.Constraint("Equal", 6, 42),
    Sketcher.Constraint("Equal", 8, 44),
    Sketcher.Constraint("Equal", 14, 50),
    Sketcher.Constraint("Equal", 16, 52),
    Sketcher.Constraint("Equal", 18, 54),
    Sketcher.Constraint("Equal", 21, 57),
    Sketcher.Constraint("Equal", 23, 59),
    Sketcher.Constraint("Equal", 25, 61),
    Sketcher.Constraint("Equal", 28, 64),
    Sketcher.Constraint("Equal", 33, 69),
    Sketcher.Constraint("Equal", 54, 0),
    Sketcher.Constraint("Equal", 57, 3),
    Sketcher.Constraint("Equal", 59, 5),
    Sketcher.Constraint("Equal", 61, 7),
    Sketcher.Constraint("Equal", 64, 10),
    Sketcher.Constraint("Equal", 66, 12),
    Sketcher.Constraint("Equal", 69, 15),
    Sketcher.Constraint("Equal", 71, 17),
    Sketcher.Constraint("Equal", 37, 19),
    Sketcher.Constraint("Equal", 17, 22),
    Sketcher.Constraint("Equal", 42, 24),
    Sketcher.Constraint("Equal", 44, 26),
    Sketcher.Constraint("Equal", 50, 32),
    Sketcher.Constraint("Equal", 52, 34),
    Sketcher.Constraint("Equal", 3, 39),
    Sketcher.Constraint("Equal", 7, 43),
    Sketcher.Constraint("Equal", 12, 48),
    Sketcher.Constraint("Equal", 53, 58),
    Sketcher.Constraint("Equal", 24, 60),
    Sketcher.Constraint("Equal", 26, 62),
    Sketcher.Constraint("Equal", 32, 68),
    Sketcher.Constraint("Equal", 74, 76),
    Sketcher.Constraint("DistanceX", 16, 1, 16, 2, 1.0),
    Sketcher.Constraint("DistanceX", 25, 1, 25, 2, 3.0),
    Sketcher.Constraint("Radius", 73, 2.75),
    Sketcher.Constraint("DistanceX", 14, 1, 14, 2, 1.5),
    Sketcher.Constraint("DistanceX", 18, 1, 18, 2, 0.5),
    Sketcher.Constraint("DistanceY", -1, 1, 11, 3, 10.0),
    Sketcher.Constraint("DistanceX", -1, 1, 29, 3, 10.0),
    Sketcher.Constraint("DistanceY", -1, 1, 5, 2, 7.0),
    Sketcher.Constraint("Radius", 2, 1.5043),
    Sketcher.Constraint("Radius", 11, 0.8732),
    Sketcher.Constraint("DistanceX", 28, 2, 28, 1, 2.503),
    Sketcher.Constraint("DistanceX", 33, 1, 33, 2, 2.909),
    Sketcher.Constraint("DistanceX", 1, 1, 1, 2, 5.0412),
    Sketcher.Constraint("DistanceX", 6, 2, 6, 1, 1.1364),
    Sketcher.Constraint("DistanceX", 8, 2, 8, 1, 1.3636),
    Sketcher.Constraint("DistanceX", 21, 2, 21, 1, 5.1624),
    Sketcher.Constraint("Distance", 72, 0.7761),
    Sketcher.Constraint("Distance", 75, 1.6715),
])
pad1 = body.newObject("PartDesign::Pad", "Pad")
pad1.Profile = sketch1
pad1.Length = 50.8
pad1.Midplane = True

doc.recompute()
